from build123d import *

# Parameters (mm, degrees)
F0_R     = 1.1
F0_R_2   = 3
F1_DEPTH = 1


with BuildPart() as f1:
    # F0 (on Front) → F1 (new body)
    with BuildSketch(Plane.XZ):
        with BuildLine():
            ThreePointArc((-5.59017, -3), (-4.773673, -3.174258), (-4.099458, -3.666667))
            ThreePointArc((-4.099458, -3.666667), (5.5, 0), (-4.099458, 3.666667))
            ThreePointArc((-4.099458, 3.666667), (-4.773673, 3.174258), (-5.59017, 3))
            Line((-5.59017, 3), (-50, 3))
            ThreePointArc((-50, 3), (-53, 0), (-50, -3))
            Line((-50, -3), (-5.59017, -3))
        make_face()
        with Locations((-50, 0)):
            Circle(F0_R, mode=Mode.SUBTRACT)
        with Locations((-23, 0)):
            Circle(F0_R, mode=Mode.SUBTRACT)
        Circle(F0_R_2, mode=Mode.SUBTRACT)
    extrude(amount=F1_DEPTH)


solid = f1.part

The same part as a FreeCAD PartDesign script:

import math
import FreeCAD as App
import Part
import Sketcher
from FreeCAD import Vector

doc = App.newDocument("Part")
body = doc.addObject("PartDesign::Body", "Body")

sketch1 = body.newObject("Sketcher::SketchObject", "Sketch")
sketch1.AttachmentSupport = (doc.getObject("XZ_Plane"), [""])
sketch1.MapMode = "FlatFace"
sketch1.addGeometry([
    Part.ArcOfCircle(Part.Circle(Vector(-5.6, -5, 0), Vector(0, 0, 1), 2), math.radians(42), math.radians(90)),
    Part.ArcOfCircle(Part.Circle(Vector(0, 0, 0), Vector(0, 0, 1), 5.5), math.radians(-138), math.radians(138)),
    Part.ArcOfCircle(Part.Circle(Vector(-5.6, 5, 0), Vector(0, 0, 1), 2), math.radians(-90), math.radians(-42)),
    Part.LineSegment(Vector(-5.6, 3, 0), Vector(-50, 3, 0)),
    Part.ArcOfCircle(Part.Circle(Vector(-50, 0, 0), Vector(0, 0, 1), 3), math.radians(90), math.radians(270)),
    Part.LineSegment(Vector(-50, -3, 0), Vector(-5.6, -3, 0)),
    Part.Circle(Vector(-50, 0, 0), Vector(0, 0, 1), 1.1),
    Part.Circle(Vector(-23, 0, 0), Vector(0, 0, 1), 1.1),
    Part.Circle(Vector(0, 0, 0), Vector(0, 0, 1), 3),
], False)
sketch1.addConstraint([
    Sketcher.Constraint("Tangent", 0, 1, 1, 1),
    Sketcher.Constraint("Tangent", 1, 2, 2, 2),
    Sketcher.Constraint("Tangent", 2, 1, 3, 1),
    Sketcher.Constraint("Tangent", 3, 2, 4, 1),
    Sketcher.Constraint("Tangent", 4, 2, 5, 1),
    Sketcher.Constraint("Tangent", 5, 2, 0, 2),
    Sketcher.Constraint("Horizontal", 3),
    Sketcher.Constraint("Horizontal", 5),
    Sketcher.Constraint("Coincident", 1, 3, -1, 1),
    Sketcher.Constraint("Coincident", 8, 3, -1, 1),
    Sketcher.Constraint("Coincident", 6, 3, 4, 3),
    Sketcher.Constraint("Equal", 0, 2),
    Sketcher.Constraint("Equal", 6, 7),
    Sketcher.Constraint("Equal", 4, 8),
    Sketcher.Constraint("PointOnObject", 4, 3, -1),
    Sketcher.Constraint("PointOnObject", 7, 3, -1),
    Sketcher.Constraint("Diameter", 8, 6.0),
    Sketcher.Constraint("Diameter", 6, 2.2),
    Sketcher.Constraint("Radius", 1, 5.5),
    Sketcher.Constraint("DistanceX", 4, 3, -1, 1, 50.0),
    Sketcher.Constraint("DistanceX", 7, 3, -1, 1, 23.0),
    Sketcher.Constraint("Radius", 0, 1.999996),
])
pad1 = body.newObject("PartDesign::Pad", "Pad")
pad1.Profile = sketch1
pad1.Length = 1

doc.recompute()
